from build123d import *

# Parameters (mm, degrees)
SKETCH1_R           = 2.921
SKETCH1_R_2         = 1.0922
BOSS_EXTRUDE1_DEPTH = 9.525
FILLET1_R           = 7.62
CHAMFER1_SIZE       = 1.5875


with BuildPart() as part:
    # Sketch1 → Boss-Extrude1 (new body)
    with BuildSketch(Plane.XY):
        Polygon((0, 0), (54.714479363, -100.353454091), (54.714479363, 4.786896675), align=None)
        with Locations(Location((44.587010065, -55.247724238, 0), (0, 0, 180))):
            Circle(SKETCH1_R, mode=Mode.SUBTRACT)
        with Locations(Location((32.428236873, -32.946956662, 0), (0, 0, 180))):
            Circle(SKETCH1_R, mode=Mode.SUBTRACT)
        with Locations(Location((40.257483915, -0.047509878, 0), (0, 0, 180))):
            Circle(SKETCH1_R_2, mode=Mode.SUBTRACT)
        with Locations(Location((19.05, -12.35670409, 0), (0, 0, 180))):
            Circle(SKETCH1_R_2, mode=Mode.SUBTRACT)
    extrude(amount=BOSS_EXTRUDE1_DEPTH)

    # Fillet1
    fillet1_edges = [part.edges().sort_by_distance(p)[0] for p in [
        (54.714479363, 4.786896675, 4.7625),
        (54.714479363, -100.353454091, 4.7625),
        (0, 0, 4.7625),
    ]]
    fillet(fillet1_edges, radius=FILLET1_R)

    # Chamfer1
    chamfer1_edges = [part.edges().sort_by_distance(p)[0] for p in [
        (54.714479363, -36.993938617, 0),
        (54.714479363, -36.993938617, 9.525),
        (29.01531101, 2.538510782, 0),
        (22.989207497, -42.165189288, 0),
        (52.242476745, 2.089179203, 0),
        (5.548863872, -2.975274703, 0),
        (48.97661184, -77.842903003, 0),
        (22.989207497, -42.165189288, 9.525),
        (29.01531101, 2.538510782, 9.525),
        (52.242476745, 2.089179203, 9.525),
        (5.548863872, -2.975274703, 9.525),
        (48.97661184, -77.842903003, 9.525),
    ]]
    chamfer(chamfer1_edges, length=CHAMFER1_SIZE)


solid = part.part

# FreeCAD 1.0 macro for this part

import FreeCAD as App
import Part
import Sketcher
Q = App.Units.Quantity


def edges_at(feature, points):
    """Names of the edges that pass closest to the given points."""
    edges = feature.Shape.Edges
    near = lambda p: min(range(len(edges)), key=lambda i: edges[i].distToShape(Part.Vertex(*p))[0])
    return sorted({f"Edge{near(p) + 1}" for p in points})

doc = App.newDocument("Part")
body = doc.addObject("PartDesign::Body", "Body")

sketch1 = body.newObject("Sketcher::SketchObject", "Sketch")
sketch1.AttachmentSupport = (doc.getObject("XY_Plane"), [""])
sketch1.MapMode = "FlatFace"
sketch1.addGeometry(Part.LineSegment(App.Vector(0, 0, 0), App.Vector(54.7, -100.4, 0)), False)
sketch1.addGeometry(Part.LineSegment(App.Vector(54.7, -100.4, 0), App.Vector(54.7, 4.8, 0)), False)
sketch1.addGeometry(Part.LineSegment(App.Vector(54.7, 4.8, 0), App.Vector(0, 0, 0)), False)
sketch1.addGeometry(Part.Circle(App.Vector(32.4, -32.9, 0), App.Vector(0, 0, 1), 2.9), False)
sketch1.addGeometry(Part.Circle(App.Vector(44.6, -55.2, 0), App.Vector(0, 0, 1), 2.9), False)
sketch1.addGeometry(Part.Circle(App.Vector(19.1, -12.4, 0), App.Vector(0, 0, 1), 1.1), False)
sketch1.addGeometry(Part.Circle(App.Vector(40.3, 0, 0), App.Vector(0, 0, 1), 1.1), False)
sketch1.addConstraint(Sketcher.Constraint("Coincident", 0, 2, 1, 1))
sketch1.addConstraint(Sketcher.Constraint("Coincident", 1, 2, 2, 1))
sketch1.addConstraint(Sketcher.Constraint("Coincident", 2, 2, 0, 1))
sketch1.addConstraint(Sketcher.Constraint("Vertical", 1))
sketch1.addConstraint(Sketcher.Constraint("Coincident", 2, 2, -1, 1))
sketch1.addConstraint(Sketcher.Constraint("Equal", 3, 4))
sketch1.addConstraint(Sketcher.Constraint("Equal", 5, 6))
sketch1.addConstraint(Sketcher.Constraint("Diameter", 3, Q("0.23 in")))
sketch1.addConstraint(Sketcher.Constraint("Diameter", 5, Q("0.086 in")))
sketch1.addConstraint(Sketcher.Constraint("Angle", 2, Q("-175 deg")))
sketch1.addConstraint(Sketcher.Constraint("Distance", 0, Q("4.5 in")))
sketch1.addConstraint(Sketcher.Constraint("Angle", 0, Q("-61.4 deg")))
sketch1.addConstraint(Sketcher.Constraint("DistanceX", -1, 1, 5, 3, Q("0.75 in")))
sketch1.addConstraint(Sketcher.Constraint("DistanceY", 5, 3, 1, 2, Q("17.143601 mm")))
sketch1.addConstraint(Sketcher.Constraint("DistanceX", -1, 1, 4, 3, Q("44.58701 mm")))
sketch1.addConstraint(Sketcher.Constraint("DistanceY", 6, 3, -1, 1, Q("0.04751 mm")))
sketch1.addConstraint(Sketcher.Constraint("DistanceY", 4, 3, 5, 3, Q("42.89102 mm")))
sketch1.addConstraint(Sketcher.Constraint("DistanceX", -1, 1, 3, 3, Q("32.428237 mm")))
sketch1.addConstraint(Sketcher.Constraint("DistanceY", 3, 3, -1, 1, Q("32.946957 mm")))
sketch1.addConstraint(Sketcher.Constraint("DistanceX", -1, 1, 6, 3, Q("40.257484 mm")))
pad1 = body.newObject("PartDesign::Pad", "Pad")
pad1.Profile = sketch1
pad1.Length = Q("0.375 in")
doc.recompute()

fillet = body.newObject("PartDesign::Fillet", "Fillet")
fillet.Base = (pad1, edges_at(pad1, [(54.714, 4.787, 4.763), (54.714, -100.353, 4.763), (0, 0, 4.763)]))
fillet.Radius = Q("0.3 in")
doc.recompute()

chamfer = body.newObject("PartDesign::Chamfer", "Chamfer")
chamfer.Base = (fillet, edges_at(fillet, [
    (54.714, -36.994, 0),
    (54.714, -36.994, 9.525),
    (29.015, 2.539, 0),
    (22.989, -42.165, 0),
    (52.242, 2.089, 0),
    (5.549, -2.975, 0),
    (48.977, -77.843, 0),
    (22.989, -42.165, 9.525),
    (29.015, 2.539, 9.525),
    (52.242, 2.089, 9.525),
    (5.549, -2.975, 9.525),
    (48.977, -77.843, 9.525),
]))
chamfer.Size = Q("0.0625 in")

doc.recompute()
